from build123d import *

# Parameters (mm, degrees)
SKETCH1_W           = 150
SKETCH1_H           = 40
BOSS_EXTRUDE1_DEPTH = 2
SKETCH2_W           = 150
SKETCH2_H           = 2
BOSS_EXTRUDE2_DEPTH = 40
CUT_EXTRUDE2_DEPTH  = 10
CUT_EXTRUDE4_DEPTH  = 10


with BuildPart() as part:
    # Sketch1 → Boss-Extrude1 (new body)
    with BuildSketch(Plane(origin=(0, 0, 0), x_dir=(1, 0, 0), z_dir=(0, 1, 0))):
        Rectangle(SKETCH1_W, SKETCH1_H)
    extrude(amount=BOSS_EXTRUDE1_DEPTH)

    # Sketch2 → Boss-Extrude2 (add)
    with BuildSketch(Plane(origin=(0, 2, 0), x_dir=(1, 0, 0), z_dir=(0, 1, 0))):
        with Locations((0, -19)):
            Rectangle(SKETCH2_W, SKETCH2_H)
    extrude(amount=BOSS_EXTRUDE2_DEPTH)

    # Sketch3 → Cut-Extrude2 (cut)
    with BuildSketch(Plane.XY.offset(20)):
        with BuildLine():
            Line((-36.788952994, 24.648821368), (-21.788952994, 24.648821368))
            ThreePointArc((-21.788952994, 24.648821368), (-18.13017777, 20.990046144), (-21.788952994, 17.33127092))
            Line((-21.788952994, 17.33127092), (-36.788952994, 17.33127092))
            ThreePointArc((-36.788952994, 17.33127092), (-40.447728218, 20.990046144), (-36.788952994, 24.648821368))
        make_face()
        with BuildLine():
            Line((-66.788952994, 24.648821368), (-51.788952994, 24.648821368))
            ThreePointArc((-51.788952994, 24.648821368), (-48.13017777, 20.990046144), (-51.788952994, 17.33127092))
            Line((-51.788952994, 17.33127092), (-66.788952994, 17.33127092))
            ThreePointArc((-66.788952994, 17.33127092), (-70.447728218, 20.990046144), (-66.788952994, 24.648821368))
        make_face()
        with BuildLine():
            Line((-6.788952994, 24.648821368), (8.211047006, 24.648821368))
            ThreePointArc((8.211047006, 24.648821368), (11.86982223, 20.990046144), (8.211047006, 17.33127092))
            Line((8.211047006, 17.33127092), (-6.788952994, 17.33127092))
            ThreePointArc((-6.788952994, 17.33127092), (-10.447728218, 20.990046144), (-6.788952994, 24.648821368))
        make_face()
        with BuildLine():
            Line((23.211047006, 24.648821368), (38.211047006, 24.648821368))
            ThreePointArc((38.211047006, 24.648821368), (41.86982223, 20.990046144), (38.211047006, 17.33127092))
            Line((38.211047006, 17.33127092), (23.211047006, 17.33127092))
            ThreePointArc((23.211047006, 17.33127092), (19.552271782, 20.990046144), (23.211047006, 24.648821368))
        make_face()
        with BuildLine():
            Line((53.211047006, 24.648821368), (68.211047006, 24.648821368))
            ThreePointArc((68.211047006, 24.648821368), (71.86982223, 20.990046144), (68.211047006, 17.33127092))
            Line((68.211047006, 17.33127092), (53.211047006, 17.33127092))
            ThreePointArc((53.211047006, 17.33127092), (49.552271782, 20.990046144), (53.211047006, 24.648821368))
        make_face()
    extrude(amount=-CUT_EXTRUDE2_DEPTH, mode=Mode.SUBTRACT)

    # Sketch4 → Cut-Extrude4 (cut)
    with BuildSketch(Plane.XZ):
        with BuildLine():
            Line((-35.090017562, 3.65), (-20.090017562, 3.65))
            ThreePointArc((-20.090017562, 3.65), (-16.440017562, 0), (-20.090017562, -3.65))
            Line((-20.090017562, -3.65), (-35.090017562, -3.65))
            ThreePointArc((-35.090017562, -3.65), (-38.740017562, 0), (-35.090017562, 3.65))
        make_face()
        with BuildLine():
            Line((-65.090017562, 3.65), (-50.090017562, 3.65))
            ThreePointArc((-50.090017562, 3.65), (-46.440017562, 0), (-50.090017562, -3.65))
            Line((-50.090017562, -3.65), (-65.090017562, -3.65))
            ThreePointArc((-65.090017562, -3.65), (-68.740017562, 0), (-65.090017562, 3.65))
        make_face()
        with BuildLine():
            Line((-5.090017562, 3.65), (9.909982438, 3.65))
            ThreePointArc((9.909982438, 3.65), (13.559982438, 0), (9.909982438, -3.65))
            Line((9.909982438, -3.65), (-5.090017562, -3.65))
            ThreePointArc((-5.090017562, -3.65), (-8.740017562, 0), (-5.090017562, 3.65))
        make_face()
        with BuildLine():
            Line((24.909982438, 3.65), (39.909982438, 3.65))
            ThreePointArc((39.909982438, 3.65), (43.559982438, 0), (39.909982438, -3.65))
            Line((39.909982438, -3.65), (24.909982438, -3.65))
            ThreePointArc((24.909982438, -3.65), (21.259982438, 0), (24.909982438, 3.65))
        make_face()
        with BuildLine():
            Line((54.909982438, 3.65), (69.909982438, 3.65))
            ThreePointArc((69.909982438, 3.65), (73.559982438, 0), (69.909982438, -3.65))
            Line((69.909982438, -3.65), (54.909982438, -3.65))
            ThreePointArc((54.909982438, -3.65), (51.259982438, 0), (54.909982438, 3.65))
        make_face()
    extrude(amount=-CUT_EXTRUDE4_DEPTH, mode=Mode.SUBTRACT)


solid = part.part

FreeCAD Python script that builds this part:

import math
import FreeCAD as App
import Part
import Sketcher

doc = App.newDocument("Part")
body = doc.addObject("PartDesign::Body", "Body")

# Sketch on XZ plane
sketch1 = body.newObject("Sketcher::SketchObject", "Sketch")
sketch1.AttachmentSupport = (doc.getObject("XZ_Plane"), [""])
sketch1.MapMode = "FlatFace"
sketch1.addGeometry(Part.LineSegment(App.Vector(-75, -20, 0), App.Vector(-75, 20, 0)), False)
sketch1.addGeometry(Part.LineSegment(App.Vector(-75, 20, 0), App.Vector(75, 20, 0)), False)
sketch1.addGeometry(Part.LineSegment(App.Vector(75, 20, 0), App.Vector(75, -20, 0)), False)
sketch1.addGeometry(Part.LineSegment(App.Vector(75, -20, 0), App.Vector(-75, -20, 0)), False)
sketch1.addConstraint(Sketcher.Constraint("Coincident", 0, 2, 1, 1))
sketch1.addConstraint(Sketcher.Constraint("Coincident", 1, 2, 2, 1))
sketch1.addConstraint(Sketcher.Constraint("Coincident", 2, 2, 3, 1))
sketch1.addConstraint(Sketcher.Constraint("Coincident", 3, 2, 0, 1))
sketch1.addConstraint(Sketcher.Constraint("Vertical", 0))
sketch1.addConstraint(Sketcher.Constraint("Horizontal", 1))
sketch1.addConstraint(Sketcher.Constraint("Vertical", 2))
sketch1.addConstraint(Sketcher.Constraint("Horizontal", 3))
sketch1.addConstraint(Sketcher.Constraint("Symmetric", 0, 2, 2, 2, -1, 1))
sketch1.addConstraint(Sketcher.Constraint("DistanceX", 1, 1, 1, 2, 150.0))
sketch1.addConstraint(Sketcher.Constraint("DistanceY", 0, 1, 0, 2, 40.0))
pad1 = body.newObject("PartDesign::Pad", "Pad")
pad1.Profile = sketch1
pad1.Length = 2
pad1.Reversed = True

# Sketch on XZ plane
sketch2 = body.newObject("Sketcher::SketchObject", "Sketch001")
sketch2.AttachmentSupport = (doc.getObject("XZ_Plane"), [""])
sketch2.MapMode = "FlatFace"
sketch2.AttachmentOffset = App.Placement(App.Vector(0, 0, -2), App.Rotation())
sketch2.addGeometry(Part.LineSegment(App.Vector(-75, 18, 0), App.Vector(-75, 20, 0)), False)
sketch2.addGeometry(Part.LineSegment(App.Vector(-75, 20, 0), App.Vector(75, 20, 0)), False)
sketch2.addGeometry(Part.LineSegment(App.Vector(75, 20, 0), App.Vector(75, 18, 0)), False)
sketch2.addGeometry(Part.LineSegment(App.Vector(75, 18, 0), App.Vector(-75, 18, 0)), False)
sketch2.addConstraint(Sketcher.Constraint("Coincident", 0, 2, 1, 1))
sketch2.addConstraint(Sketcher.Constraint("Coincident", 1, 2, 2, 1))
sketch2.addConstraint(Sketcher.Constraint("Coincident", 2, 2, 3, 1))
sketch2.addConstraint(Sketcher.Constraint("Coincident", 3, 2, 0, 1))
sketch2.addConstraint(Sketcher.Constraint("Vertical", 0))
sketch2.addConstraint(Sketcher.Constraint("Horizontal", 1))
sketch2.addConstraint(Sketcher.Constraint("Vertical", 2))
sketch2.addConstraint(Sketcher.Constraint("Horizontal", 3))
sketch2.addConstraint(Sketcher.Constraint("DistanceX", 1, 1, 1, 2, 150.0))
sketch2.addConstraint(Sketcher.Constraint("DistanceY", 0, 1, 0, 2, 2.0))
sketch2.addConstraint(Sketcher.Constraint("DistanceX", 0, 2, -1, 1, 75.0))
sketch2.addConstraint(Sketcher.Constraint("DistanceY", -1, 1, 0, 2, 20.0))
pad2 = body.newObject("PartDesign::Pad", "Pad001")
pad2.Profile = sketch2
pad2.Length = 40
pad2.Reversed = True

# Sketch on XY plane
sketch3 = body.newObject("Sketcher::SketchObject", "Sketch002")
sketch3.AttachmentSupport = (doc.getObject("XY_Plane"), [""])
sketch3.MapMode = "FlatFace"
sketch3.AttachmentOffset = App.Placement(App.Vector(0, 0, 20), App.Rotation())
sketch3.addGeometry(Part.LineSegment(App.Vector(-21.8, 24.6, 0), App.Vector(-36.8, 24.6, 0)), False)
sketch3.addGeometry(Part.ArcOfCircle(Part.Circle(App.Vector(-36.8, 21, 0), App.Vector(0, 0, 1), 3.7), math.radians(90), math.radians(270)), False)
sketch3.addGeometry(Part.LineSegment(App.Vector(-36.8, 17.3, 0), App.Vector(-21.8, 17.3, 0)), False)
sketch3.addGeometry(Part.ArcOfCircle(Part.Circle(App.Vector(-21.8, 21, 0), App.Vector(0, 0, 1), 3.7), math.radians(-90), math.radians(90)), False)
sketch3.addGeometry(Part.LineSegment(App.Vector(-51.8, 24.6, 0), App.Vector(-66.8, 24.6, 0)), False)
sketch3.addGeometry(Part.ArcOfCircle(Part.Circle(App.Vector(-66.8, 21, 0), App.Vector(0, 0, 1), 3.7), math.radians(90), math.radians(270)), False)
sketch3.addGeometry(Part.LineSegment(App.Vector(-66.8, 17.3, 0), App.Vector(-51.8, 17.3, 0)), False)
sketch3.addGeometry(Part.ArcOfCircle(Part.Circle(App.Vector(-51.8, 21, 0), App.Vector(0, 0, 1), 3.7), math.radians(-90), math.radians(90)), False)
sketch3.addGeometry(Part.LineSegment(App.Vector(8.2, 24.6, 0), App.Vector(-6.8, 24.6, 0)), False)
sketch3.addGeometry(Part.ArcOfCircle(Part.Circle(App.Vector(-6.8, 21, 0), App.Vector(0, 0, 1), 3.7), math.radians(90), math.radians(270)), False)
sketch3.addGeometry(Part.LineSegment(App.Vector(-6.8, 17.3, 0), App.Vector(8.2, 17.3, 0)), False)
sketch3.addGeometry(Part.ArcOfCircle(Part.Circle(App.Vector(8.2, 21, 0), App.Vector(0, 0, 1), 3.7), math.radians(-90), math.radians(90)), False)
sketch3.addGeometry(Part.LineSegment(App.Vector(38.2, 24.6, 0), App.Vector(23.2, 24.6, 0)), False)
sketch3.addGeometry(Part.ArcOfCircle(Part.Circle(App.Vector(23.2, 21, 0), App.Vector(0, 0, 1), 3.7), math.radians(90), math.radians(270)), False)
sketch3.addGeometry(Part.LineSegment(App.Vector(23.2, 17.3, 0), App.Vector(38.2, 17.3, 0)), False)
sketch3.addGeometry(Part.ArcOfCircle(Part.Circle(App.Vector(38.2, 21, 0), App.Vector(0, 0, 1), 3.7), math.radians(-90), math.radians(90)), False)
sketch3.addGeometry(Part.LineSegment(App.Vector(68.2, 24.6, 0), App.Vector(53.2, 24.6, 0)), False)
sketch3.addGeometry(Part.ArcOfCircle(Part.Circle(App.Vector(53.2, 21, 0), App.Vector(0, 0, 1), 3.7), math.radians(90), math.radians(270)), False)
sketch3.addGeometry(Part.LineSegment(App.Vector(53.2, 17.3, 0), App.Vector(68.2, 17.3, 0)), False)
sketch3.addGeometry(Part.ArcOfCircle(Part.Circle(App.Vector(68.2, 21, 0), App.Vector(0, 0, 1), 3.7), math.radians(-90), math.radians(90)), False)
sketch3.addConstraint(Sketcher.Constraint("Tangent", 0, 2, 1, 1))
sketch3.addConstraint(Sketcher.Constraint("Tangent", 1, 2, 2, 1))
sketch3.addConstraint(Sketcher.Constraint("Tangent", 2, 2, 3, 1))
sketch3.addConstraint(Sketcher.Constraint("Tangent", 3, 2, 0, 1))
sketch3.addConstraint(Sketcher.Constraint("Tangent", 4, 2, 5, 1))
sketch3.addConstraint(Sketcher.Constraint("Tangent", 5, 2, 6, 1))
sketch3.addConstraint(Sketcher.Constraint("Tangent", 6, 2, 7, 1))
sketch3.addConstraint(Sketcher.Constraint("Tangent", 7, 2, 4, 1))
sketch3.addConstraint(Sketcher.Constraint("Tangent", 8, 2, 9, 1))
sketch3.addConstraint(Sketcher.Constraint("Tangent", 9, 2, 10, 1))
sketch3.addConstraint(Sketcher.Constraint("Tangent", 10, 2, 11, 1))
sketch3.addConstraint(Sketcher.Constraint("Tangent", 11, 2, 8, 1))
sketch3.addConstraint(Sketcher.Constraint("Tangent", 12, 2, 13, 1))
sketch3.addConstraint(Sketcher.Constraint("Tangent", 13, 2, 14, 1))
sketch3.addConstraint(Sketcher.Constraint("Tangent", 14, 2, 15, 1))
sketch3.addConstraint(Sketcher.Constraint("Tangent", 15, 2, 12, 1))
sketch3.addConstraint(Sketcher.Constraint("Tangent", 16, 2, 17, 1))
sketch3.addConstraint(Sketcher.Constraint("Tangent", 17, 2, 18, 1))
sketch3.addConstraint(Sketcher.Constraint("Tangent", 18, 2, 19, 1))
sketch3.addConstraint(Sketcher.Constraint("Tangent", 19, 2, 16, 1))
sketch3.addConstraint(Sketcher.Constraint("Horizontal", 0))
sketch3.addConstraint(Sketcher.Constraint("Horizontal", 2))
sketch3.addConstraint(Sketcher.Constraint("Horizontal", 4))
sketch3.addConstraint(Sketcher.Constraint("Horizontal", 6))
sketch3.addConstraint(Sketcher.Constraint("Horizontal", 8))
sketch3.addConstraint(Sketcher.Constraint("Horizontal", 10))
sketch3.addConstraint(Sketcher.Constraint("Horizontal", 12))
sketch3.addConstraint(Sketcher.Constraint("Horizontal", 14))
sketch3.addConstraint(Sketcher.Constraint("Horizontal", 16))
sketch3.addConstraint(Sketcher.Constraint("Horizontal", 18))
sketch3.addConstraint(Sketcher.Constraint("Equal", 3, 5))
sketch3.addConstraint(Sketcher.Constraint("Equal", 7, 9))
sketch3.addConstraint(Sketcher.Constraint("Equal", 11, 13))
sketch3.addConstraint(Sketcher.Constraint("Equal", 15, 17))
sketch3.addConstraint(Sketcher.Constraint("Horizontal", 3, 3, 5, 3))
sketch3.addConstraint(Sketcher.Constraint("Horizontal", 7, 3, 9, 3))
sketch3.addConstraint(Sketcher.Constraint("Horizontal", 11, 3, 13, 3))
sketch3.addConstraint(Sketcher.Constraint("Horizontal", 15, 3, 17, 3))
sketch3.addConstraint(Sketcher.Constraint("Equal", 2, 4))
sketch3.addConstraint(Sketcher.Constraint("Equal", 6, 8))
sketch3.addConstraint(Sketcher.Constraint("Equal", 10, 12))
sketch3.addConstraint(Sketcher.Constraint("Equal", 14, 16))
sketch3.addConstraint(Sketcher.Constraint("DistanceX", 0, 2, 0, 1, 15.0))
sketch3.addConstraint(Sketcher.Constraint("DistanceX", 5, 3, 1, 3, 30.0))
sketch3.addConstraint(Sketcher.Constraint("DistanceX", 3, 3, 9, 3, 15.0))
sketch3.addConstraint(Sketcher.Constraint("DistanceX", 11, 3, 13, 3, 15.0))
sketch3.addConstraint(Sketcher.Constraint("DistanceX", 15, 3, 17, 3, 15.0))
sketch3.addConstraint(Sketcher.Constraint("Radius", 1, 3.658775))
sketch3.addConstraint(Sketcher.Constraint("DistanceY", -1, 1, 0, 2, 24.648821))
sketch3.addConstraint(Sketcher.Constraint("DistanceX", 1, 3, -1, 1, 36.788953))
pocket1 = body.newObject("PartDesign::Pocket", "Pocket")
pocket1.Profile = sketch3
pocket1.Length = 10

# Sketch on XZ plane
sketch4 = body.newObject("Sketcher::SketchObject", "Sketch003")
sketch4.AttachmentSupport = (doc.getObject("XZ_Plane"), [""])
sketch4.MapMode = "FlatFace"
sketch4.addGeometry(Part.LineSegment(App.Vector(-20.1, 3.6, 0), App.Vector(-35.1, 3.6, 0)), False)
sketch4.addGeometry(Part.ArcOfCircle(Part.Circle(App.Vector(-35.1, 0, 0), App.Vector(0, 0, 1), 3.6), math.radians(90), math.radians(270)), False)
sketch4.addGeometry(Part.LineSegment(App.Vector(-35.1, -3.6, 0), App.Vector(-20.1, -3.6, 0)), False)
sketch4.addGeometry(Part.ArcOfCircle(Part.Circle(App.Vector(-20.1, 0, 0), App.Vector(0, 0, 1), 3.6), math.radians(-90), math.radians(90)), False)
sketch4.addGeometry(Part.LineSegment(App.Vector(-50.1, 3.6, 0), App.Vector(-65.1, 3.6, 0)), False)
sketch4.addGeometry(Part.ArcOfCircle(Part.Circle(App.Vector(-65.1, 0, 0), App.Vector(0, 0, 1), 3.6), math.radians(90), math.radians(270)), False)
sketch4.addGeometry(Part.LineSegment(App.Vector(-65.1, -3.6, 0), App.Vector(-50.1, -3.6, 0)), False)
sketch4.addGeometry(Part.ArcOfCircle(Part.Circle(App.Vector(-50.1, 0, 0), App.Vector(0, 0, 1), 3.6), math.radians(-90), math.radians(90)), False)
sketch4.addGeometry(Part.LineSegment(App.Vector(9.9, 3.6, 0), App.Vector(-5.1, 3.6, 0)), False)
sketch4.addGeometry(Part.ArcOfCircle(Part.Circle(App.Vector(-5.1, 0, 0), App.Vector(0, 0, 1), 3.6), math.radians(90), math.radians(270)), False)
sketch4.addGeometry(Part.LineSegment(App.Vector(-5.1, -3.6, 0), App.Vector(9.9, -3.6, 0)), False)
sketch4.addGeometry(Part.ArcOfCircle(Part.Circle(App.Vector(9.9, 0, 0), App.Vector(0, 0, 1), 3.6), math.radians(-90), math.radians(90)), False)
sketch4.addGeometry(Part.LineSegment(App.Vector(39.9, 3.6, 0), App.Vector(24.9, 3.6, 0)), False)
sketch4.addGeometry(Part.ArcOfCircle(Part.Circle(App.Vector(24.9, 0, 0), App.Vector(0, 0, 1), 3.6), math.radians(90), math.radians(270)), False)
sketch4.addGeometry(Part.LineSegment(App.Vector(24.9, -3.6, 0), App.Vector(39.9, -3.6, 0)), False)
sketch4.addGeometry(Part.ArcOfCircle(Part.Circle(App.Vector(39.9, 0, 0), App.Vector(0, 0, 1), 3.6), math.radians(-90), math.radians(90)), False)
sketch4.addGeometry(Part.LineSegment(App.Vector(69.9, 3.6, 0), App.Vector(54.9, 3.6, 0)), False)
sketch4.addGeometry(Part.ArcOfCircle(Part.Circle(App.Vector(54.9, 0, 0), App.Vector(0, 0, 1), 3.6), math.radians(90), math.radians(270)), False)
sketch4.addGeometry(Part.LineSegment(App.Vector(54.9, -3.6, 0), App.Vector(69.9, -3.6, 0)), False)
sketch4.addGeometry(Part.ArcOfCircle(Part.Circle(App.Vector(69.9, 0, 0), App.Vector(0, 0, 1), 3.6), math.radians(-90), math.radians(90)), False)
sketch4.addConstraint(Sketcher.Constraint("Tangent", 0, 2, 1, 1))
sketch4.addConstraint(Sketcher.Constraint("Tangent", 1, 2, 2, 1))
sketch4.addConstraint(Sketcher.Constraint("Tangent", 2, 2, 3, 1))
sketch4.addConstraint(Sketcher.Constraint("Tangent", 3, 2, 0, 1))
sketch4.addConstraint(Sketcher.Constraint("Tangent", 4, 2, 5, 1))
sketch4.addConstraint(Sketcher.Constraint("Tangent", 5, 2, 6, 1))
sketch4.addConstraint(Sketcher.Constraint("Tangent", 6, 2, 7, 1))
sketch4.addConstraint(Sketcher.Constraint("Tangent", 7, 2, 4, 1))
sketch4.addConstraint(Sketcher.Constraint("Tangent", 8, 2, 9, 1))
sketch4.addConstraint(Sketcher.Constraint("Tangent", 9, 2, 10, 1))
sketch4.addConstraint(Sketcher.Constraint("Tangent", 10, 2, 11, 1))
sketch4.addConstraint(Sketcher.Constraint("Tangent", 11, 2, 8, 1))
sketch4.addConstraint(Sketcher.Constraint("Tangent", 12, 2, 13, 1))
sketch4.addConstraint(Sketcher.Constraint("Tangent", 13, 2, 14, 1))
sketch4.addConstraint(Sketcher.Constraint("Tangent", 14, 2, 15, 1))
sketch4.addConstraint(Sketcher.Constraint("Tangent", 15, 2, 12, 1))
sketch4.addConstraint(Sketcher.Constraint("Tangent", 16, 2, 17, 1))
sketch4.addConstraint(Sketcher.Constraint("Tangent", 17, 2, 18, 1))
sketch4.addConstraint(Sketcher.Constraint("Tangent", 18, 2, 19, 1))
sketch4.addConstraint(Sketcher.Constraint("Tangent", 19, 2, 16, 1))
sketch4.addConstraint(Sketcher.Constraint("Horizontal", 0))
sketch4.addConstraint(Sketcher.Constraint("Horizontal", 2))
sketch4.addConstraint(Sketcher.Constraint("Horizontal", 4))
sketch4.addConstraint(Sketcher.Constraint("Horizontal", 6))
sketch4.addConstraint(Sketcher.Constraint("Horizontal", 8))
sketch4.addConstraint(Sketcher.Constraint("Horizontal", 10))
sketch4.addConstraint(Sketcher.Constraint("Horizontal", 12))
sketch4.addConstraint(Sketcher.Constraint("Horizontal", 14))
sketch4.addConstraint(Sketcher.Constraint("Horizontal", 16))
sketch4.addConstraint(Sketcher.Constraint("Horizontal", 18))
sketch4.addConstraint(Sketcher.Constraint("Equal", 3, 5))
sketch4.addConstraint(Sketcher.Constraint("Equal", 7, 9))
sketch4.addConstraint(Sketcher.Constraint("Equal", 11, 13))
sketch4.addConstraint(Sketcher.Constraint("Equal", 15, 17))
sketch4.addConstraint(Sketcher.Constraint("PointOnObject", 1, 3, -1))
sketch4.addConstraint(Sketcher.Constraint("PointOnObject", 5, 3, -1))
sketch4.addConstraint(Sketcher.Constraint("PointOnObject", 9, 3, -1))
sketch4.addConstraint(Sketcher.Constraint("PointOnObject", 13, 3, -1))
sketch4.addConstraint(Sketcher.Constraint("PointOnObject", 17, 3, -1))
sketch4.addConstraint(Sketcher.Constraint("Equal", 2, 4))
sketch4.addConstraint(Sketcher.Constraint("Equal", 6, 8))
sketch4.addConstraint(Sketcher.Constraint("Equal", 10, 12))
sketch4.addConstraint(Sketcher.Constraint("Equal", 14, 16))
sketch4.addConstraint(Sketcher.Constraint("DistanceX", 0, 2, 0, 1, 15.0))
sketch4.addConstraint(Sketcher.Constraint("Radius", 1, 3.65))
sketch4.addConstraint(Sketcher.Constraint("DistanceX", 5, 3, 1, 3, 30.0))
sketch4.addConstraint(Sketcher.Constraint("DistanceX", 3, 3, 9, 3, 15.0))
sketch4.addConstraint(Sketcher.Constraint("DistanceX", 11, 3, 13, 3, 15.0))
sketch4.addConstraint(Sketcher.Constraint("DistanceX", 15, 3, 17, 3, 15.0))
sketch4.addConstraint(Sketcher.Constraint("DistanceX", 1, 3, -1, 1, 35.090018))
pocket2 = body.newObject("PartDesign::Pocket", "Pocket001")
pocket2.Profile = sketch4
pocket2.Length = 10

doc.recompute()
